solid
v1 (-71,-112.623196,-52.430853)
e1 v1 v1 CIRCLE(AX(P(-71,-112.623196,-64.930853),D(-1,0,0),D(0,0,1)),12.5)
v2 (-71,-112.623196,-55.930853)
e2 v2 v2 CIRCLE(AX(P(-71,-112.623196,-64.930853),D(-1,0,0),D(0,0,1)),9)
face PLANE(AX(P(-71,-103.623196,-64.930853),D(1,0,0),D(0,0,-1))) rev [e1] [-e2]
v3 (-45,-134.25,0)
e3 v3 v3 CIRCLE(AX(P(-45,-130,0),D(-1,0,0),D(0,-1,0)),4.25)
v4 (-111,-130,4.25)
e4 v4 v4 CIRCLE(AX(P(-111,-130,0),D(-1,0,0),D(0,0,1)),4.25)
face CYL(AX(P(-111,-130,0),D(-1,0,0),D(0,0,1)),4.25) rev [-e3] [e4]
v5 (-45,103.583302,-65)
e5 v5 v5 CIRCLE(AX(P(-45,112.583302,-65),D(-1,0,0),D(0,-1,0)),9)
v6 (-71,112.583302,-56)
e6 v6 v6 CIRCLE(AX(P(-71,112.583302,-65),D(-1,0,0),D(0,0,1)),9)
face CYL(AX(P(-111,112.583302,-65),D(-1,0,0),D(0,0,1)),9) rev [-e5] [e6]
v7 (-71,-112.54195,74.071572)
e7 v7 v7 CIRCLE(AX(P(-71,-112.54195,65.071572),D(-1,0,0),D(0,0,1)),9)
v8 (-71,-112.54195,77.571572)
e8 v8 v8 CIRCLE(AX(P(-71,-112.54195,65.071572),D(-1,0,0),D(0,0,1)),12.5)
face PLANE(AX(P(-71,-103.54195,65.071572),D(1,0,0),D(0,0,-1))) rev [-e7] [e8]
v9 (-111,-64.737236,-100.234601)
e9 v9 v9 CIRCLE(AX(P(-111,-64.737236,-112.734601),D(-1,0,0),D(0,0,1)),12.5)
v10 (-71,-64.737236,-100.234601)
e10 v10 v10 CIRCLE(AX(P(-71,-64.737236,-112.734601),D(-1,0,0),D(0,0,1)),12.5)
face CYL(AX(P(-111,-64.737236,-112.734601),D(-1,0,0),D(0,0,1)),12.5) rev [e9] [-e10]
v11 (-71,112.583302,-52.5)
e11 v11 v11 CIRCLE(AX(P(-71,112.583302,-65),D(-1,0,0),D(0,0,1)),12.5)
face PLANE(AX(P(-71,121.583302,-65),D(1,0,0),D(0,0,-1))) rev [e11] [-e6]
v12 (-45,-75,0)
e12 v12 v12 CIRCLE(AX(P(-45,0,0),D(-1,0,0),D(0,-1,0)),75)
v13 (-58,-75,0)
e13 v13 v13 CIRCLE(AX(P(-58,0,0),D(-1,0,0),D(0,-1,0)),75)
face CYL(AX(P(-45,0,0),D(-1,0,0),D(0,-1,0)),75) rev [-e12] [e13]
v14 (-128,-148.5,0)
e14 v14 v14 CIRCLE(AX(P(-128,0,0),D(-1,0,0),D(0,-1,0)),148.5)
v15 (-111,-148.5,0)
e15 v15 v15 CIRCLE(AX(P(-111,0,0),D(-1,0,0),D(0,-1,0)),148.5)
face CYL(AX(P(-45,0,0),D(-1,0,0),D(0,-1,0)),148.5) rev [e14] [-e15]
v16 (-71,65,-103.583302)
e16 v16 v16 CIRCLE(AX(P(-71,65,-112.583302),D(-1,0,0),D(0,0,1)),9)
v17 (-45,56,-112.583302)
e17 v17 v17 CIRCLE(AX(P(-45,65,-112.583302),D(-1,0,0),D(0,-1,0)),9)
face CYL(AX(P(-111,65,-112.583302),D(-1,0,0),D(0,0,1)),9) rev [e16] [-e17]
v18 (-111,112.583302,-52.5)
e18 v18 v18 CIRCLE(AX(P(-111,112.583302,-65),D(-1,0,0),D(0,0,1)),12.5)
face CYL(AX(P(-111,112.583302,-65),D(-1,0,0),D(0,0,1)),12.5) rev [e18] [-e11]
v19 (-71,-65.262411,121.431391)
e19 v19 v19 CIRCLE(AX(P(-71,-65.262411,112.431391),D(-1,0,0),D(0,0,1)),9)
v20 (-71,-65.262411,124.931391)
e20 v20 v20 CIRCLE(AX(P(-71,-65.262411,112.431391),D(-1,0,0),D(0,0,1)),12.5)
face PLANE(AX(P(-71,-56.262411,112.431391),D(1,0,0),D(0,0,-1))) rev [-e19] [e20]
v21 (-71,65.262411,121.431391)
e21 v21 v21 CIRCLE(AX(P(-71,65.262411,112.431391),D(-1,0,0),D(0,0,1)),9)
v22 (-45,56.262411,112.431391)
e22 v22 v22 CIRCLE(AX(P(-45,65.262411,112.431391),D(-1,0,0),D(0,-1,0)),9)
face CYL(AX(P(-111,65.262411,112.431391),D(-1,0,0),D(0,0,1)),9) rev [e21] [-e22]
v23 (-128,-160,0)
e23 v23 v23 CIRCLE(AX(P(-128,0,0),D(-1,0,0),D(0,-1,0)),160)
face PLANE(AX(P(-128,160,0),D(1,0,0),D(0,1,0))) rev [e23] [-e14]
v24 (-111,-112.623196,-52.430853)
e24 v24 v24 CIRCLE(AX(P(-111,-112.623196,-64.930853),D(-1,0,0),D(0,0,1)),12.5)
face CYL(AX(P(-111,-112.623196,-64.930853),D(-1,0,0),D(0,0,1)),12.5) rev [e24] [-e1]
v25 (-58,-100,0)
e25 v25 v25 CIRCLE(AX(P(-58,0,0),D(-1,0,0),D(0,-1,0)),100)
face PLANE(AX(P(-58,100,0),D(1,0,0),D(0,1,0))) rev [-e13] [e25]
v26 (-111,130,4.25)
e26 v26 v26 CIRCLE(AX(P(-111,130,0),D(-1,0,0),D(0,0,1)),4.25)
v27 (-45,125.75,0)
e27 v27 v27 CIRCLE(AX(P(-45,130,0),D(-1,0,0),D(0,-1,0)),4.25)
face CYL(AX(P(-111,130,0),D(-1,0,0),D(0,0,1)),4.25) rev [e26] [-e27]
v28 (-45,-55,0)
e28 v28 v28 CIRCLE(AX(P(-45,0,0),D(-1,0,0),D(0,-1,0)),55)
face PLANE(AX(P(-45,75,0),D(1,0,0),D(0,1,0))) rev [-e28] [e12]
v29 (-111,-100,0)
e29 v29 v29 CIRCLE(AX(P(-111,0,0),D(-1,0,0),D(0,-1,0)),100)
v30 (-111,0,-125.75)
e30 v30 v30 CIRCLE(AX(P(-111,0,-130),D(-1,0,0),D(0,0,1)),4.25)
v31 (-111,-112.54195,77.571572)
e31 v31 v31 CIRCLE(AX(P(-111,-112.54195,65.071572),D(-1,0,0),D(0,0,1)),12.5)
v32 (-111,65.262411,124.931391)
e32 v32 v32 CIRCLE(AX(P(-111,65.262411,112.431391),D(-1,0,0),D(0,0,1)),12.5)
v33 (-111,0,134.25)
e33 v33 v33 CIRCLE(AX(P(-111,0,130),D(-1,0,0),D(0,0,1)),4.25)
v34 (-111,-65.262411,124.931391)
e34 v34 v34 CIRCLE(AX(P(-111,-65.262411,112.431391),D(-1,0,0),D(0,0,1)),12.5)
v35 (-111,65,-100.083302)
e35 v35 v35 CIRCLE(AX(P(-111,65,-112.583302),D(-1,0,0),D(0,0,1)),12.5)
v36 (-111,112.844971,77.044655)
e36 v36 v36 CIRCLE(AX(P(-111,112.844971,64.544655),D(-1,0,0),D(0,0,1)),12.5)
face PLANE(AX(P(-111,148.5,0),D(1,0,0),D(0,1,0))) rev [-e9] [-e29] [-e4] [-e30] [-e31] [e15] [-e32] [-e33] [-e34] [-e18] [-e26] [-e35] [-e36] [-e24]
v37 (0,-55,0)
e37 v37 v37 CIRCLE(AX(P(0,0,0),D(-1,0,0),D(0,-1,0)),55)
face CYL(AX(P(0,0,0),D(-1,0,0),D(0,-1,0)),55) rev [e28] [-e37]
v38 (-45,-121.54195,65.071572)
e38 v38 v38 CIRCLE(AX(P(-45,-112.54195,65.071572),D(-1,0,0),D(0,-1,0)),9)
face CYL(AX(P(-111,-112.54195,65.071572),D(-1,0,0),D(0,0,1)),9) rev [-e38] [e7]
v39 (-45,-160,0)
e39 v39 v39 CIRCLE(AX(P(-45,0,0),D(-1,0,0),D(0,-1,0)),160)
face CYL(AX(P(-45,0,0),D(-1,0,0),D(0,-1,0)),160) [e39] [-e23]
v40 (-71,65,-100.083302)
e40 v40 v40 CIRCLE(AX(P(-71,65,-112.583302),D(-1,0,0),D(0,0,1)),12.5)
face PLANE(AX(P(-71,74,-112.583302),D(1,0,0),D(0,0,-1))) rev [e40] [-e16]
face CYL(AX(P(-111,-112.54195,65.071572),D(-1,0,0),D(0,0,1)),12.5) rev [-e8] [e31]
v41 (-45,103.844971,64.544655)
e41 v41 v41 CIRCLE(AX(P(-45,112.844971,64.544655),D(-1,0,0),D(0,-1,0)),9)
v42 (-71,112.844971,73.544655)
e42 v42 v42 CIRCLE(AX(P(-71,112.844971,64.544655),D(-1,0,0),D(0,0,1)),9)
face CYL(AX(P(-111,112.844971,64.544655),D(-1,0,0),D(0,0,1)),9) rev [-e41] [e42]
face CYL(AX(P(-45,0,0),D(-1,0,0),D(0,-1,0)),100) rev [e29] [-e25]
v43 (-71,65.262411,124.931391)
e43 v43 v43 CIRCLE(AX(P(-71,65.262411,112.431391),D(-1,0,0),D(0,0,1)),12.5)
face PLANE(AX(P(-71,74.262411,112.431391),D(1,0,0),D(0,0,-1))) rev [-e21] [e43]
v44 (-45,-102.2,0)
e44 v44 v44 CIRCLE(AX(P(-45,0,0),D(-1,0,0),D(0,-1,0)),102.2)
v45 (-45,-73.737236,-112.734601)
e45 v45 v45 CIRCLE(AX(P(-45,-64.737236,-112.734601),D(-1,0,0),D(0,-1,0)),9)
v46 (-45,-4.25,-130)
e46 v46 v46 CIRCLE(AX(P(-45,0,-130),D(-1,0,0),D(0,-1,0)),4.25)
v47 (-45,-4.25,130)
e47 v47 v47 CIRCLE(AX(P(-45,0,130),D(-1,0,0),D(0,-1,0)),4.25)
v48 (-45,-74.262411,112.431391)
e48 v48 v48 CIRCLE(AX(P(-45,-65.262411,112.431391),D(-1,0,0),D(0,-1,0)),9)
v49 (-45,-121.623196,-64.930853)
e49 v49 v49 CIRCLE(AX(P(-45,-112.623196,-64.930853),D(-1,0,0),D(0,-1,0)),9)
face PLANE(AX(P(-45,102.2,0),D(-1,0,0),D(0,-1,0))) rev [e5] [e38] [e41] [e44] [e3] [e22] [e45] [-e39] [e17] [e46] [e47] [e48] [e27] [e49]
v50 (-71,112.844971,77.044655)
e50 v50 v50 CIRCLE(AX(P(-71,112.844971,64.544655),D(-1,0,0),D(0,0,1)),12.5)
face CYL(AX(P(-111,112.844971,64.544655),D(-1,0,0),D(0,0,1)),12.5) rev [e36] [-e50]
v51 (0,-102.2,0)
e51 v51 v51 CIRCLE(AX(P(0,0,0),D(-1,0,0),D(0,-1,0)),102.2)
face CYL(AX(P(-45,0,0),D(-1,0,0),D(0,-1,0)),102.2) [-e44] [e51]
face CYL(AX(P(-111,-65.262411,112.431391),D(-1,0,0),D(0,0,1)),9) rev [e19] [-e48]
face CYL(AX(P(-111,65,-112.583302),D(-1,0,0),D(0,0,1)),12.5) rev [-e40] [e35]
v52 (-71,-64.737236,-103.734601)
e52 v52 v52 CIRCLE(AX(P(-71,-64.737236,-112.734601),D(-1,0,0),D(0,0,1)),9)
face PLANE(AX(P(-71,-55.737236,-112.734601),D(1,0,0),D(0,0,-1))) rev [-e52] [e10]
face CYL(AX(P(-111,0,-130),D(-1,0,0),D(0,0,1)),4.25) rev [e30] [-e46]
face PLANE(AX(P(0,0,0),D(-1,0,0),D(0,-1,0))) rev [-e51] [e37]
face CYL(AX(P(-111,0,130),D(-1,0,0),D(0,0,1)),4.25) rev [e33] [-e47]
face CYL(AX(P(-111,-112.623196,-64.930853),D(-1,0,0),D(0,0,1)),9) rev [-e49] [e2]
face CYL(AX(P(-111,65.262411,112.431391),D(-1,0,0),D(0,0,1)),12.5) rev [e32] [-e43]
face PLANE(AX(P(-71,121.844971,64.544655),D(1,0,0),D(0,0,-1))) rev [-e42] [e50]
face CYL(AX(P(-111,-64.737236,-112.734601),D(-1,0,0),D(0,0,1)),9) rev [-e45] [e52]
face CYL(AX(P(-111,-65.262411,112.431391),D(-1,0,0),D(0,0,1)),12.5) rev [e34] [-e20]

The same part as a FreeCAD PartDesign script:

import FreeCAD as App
import Part
import Sketcher

V = App.Vector

doc = App.newDocument("Part")
body = doc.addObject("PartDesign::Body", "Body")

# Sketch on XY plane
sketch1 = doc.addObject("Sketcher::SketchObject", "Sketch")
body.addObject(sketch1)
sketch1.AttachmentSupport = (doc.XY_Plane, [""])
sketch1.MapMode = "FlatFace"
sketch1.addGeometry([
    Part.LineSegment(V(0, 0, 0), V(0, 102, 0)),  # 0
    Part.LineSegment(V(0, 102, 0), V(-45, 102, 0)),  # 1
    Part.LineSegment(V(-45, 102, 0), V(-45, 160, 0)),  # 2
    Part.LineSegment(V(-45, 160, 0), V(-128, 160, 0)),  # 3
    Part.LineSegment(V(-128, 160, 0), V(-128, 148, 0)),  # 4
    Part.LineSegment(V(-128, 148, 0), V(-111, 148, 0)),  # 5
    Part.LineSegment(V(-111, 148, 0), V(-111, 100, 0)),  # 6
    Part.LineSegment(V(-111, 100, 0), V(-58, 100, 0)),  # 7
    Part.LineSegment(V(-58, 100, 0), V(-58, 75, 0)),  # 8
    Part.LineSegment(V(-58, 75, 0), V(-45, 75, 0)),  # 9
    Part.LineSegment(V(-45, 75, 0), V(-45, 0, 0)),  # 10
    Part.LineSegment(V(-45, 0, 0), V(0, 0, 0)),  # 11
], False)
sketch1.addConstraint([
    Sketcher.Constraint("Coincident", 0, 2, 1, 1),
    Sketcher.Constraint("Coincident", 1, 2, 2, 1),
    Sketcher.Constraint("Coincident", 2, 2, 3, 1),
    Sketcher.Constraint("Coincident", 3, 2, 4, 1),
    Sketcher.Constraint("Coincident", 4, 2, 5, 1),
    Sketcher.Constraint("Coincident", 5, 2, 6, 1),
    Sketcher.Constraint("Coincident", 6, 2, 7, 1),
    Sketcher.Constraint("Coincident", 7, 2, 8, 1),
    Sketcher.Constraint("Coincident", 8, 2, 9, 1),
    Sketcher.Constraint("Coincident", 9, 2, 10, 1),
    Sketcher.Constraint("Coincident", 10, 2, 11, 1),
    Sketcher.Constraint("Coincident", 11, 2, 0, 1),
    Sketcher.Constraint("Vertical", 0),
    Sketcher.Constraint("Horizontal", 1),
    Sketcher.Constraint("Vertical", 2),
    Sketcher.Constraint("Horizontal", 3),
    Sketcher.Constraint("Vertical", 4),
    Sketcher.Constraint("Horizontal", 5),
    Sketcher.Constraint("Vertical", 6),
    Sketcher.Constraint("Horizontal", 7),
    Sketcher.Constraint("Vertical", 8),
    Sketcher.Constraint("Horizontal", 9),
    Sketcher.Constraint("Vertical", 10),
    Sketcher.Constraint("Horizontal", 11),
    Sketcher.Constraint("Coincident", 11, 2, -1, 1),
    Sketcher.Constraint("Vertical", 2, 2, 9, 2),
    Sketcher.Constraint("DistanceX", 1, 2, 1, 1, 45.0),
    Sketcher.Constraint("DistanceX", 3, 2, 3, 1, 83.0),
    Sketcher.Constraint("DistanceX", 5, 1, 5, 2, 17.0),
    Sketcher.Constraint("DistanceX", 7, 1, 7, 2, 53.0),
    Sketcher.Constraint("DistanceY", 8, 2, 8, 1, 25.0),
    Sketcher.Constraint("DistanceY", 10, 2, 10, 1, 75.0),
    Sketcher.Constraint("DistanceY", 0, 1, 0, 2, 102.2),
    Sketcher.Constraint("DistanceY", 2, 1, 2, 2, 57.8),
    Sketcher.Constraint("DistanceY", 4, 2, 4, 1, 11.5),
])
revolution = doc.addObject("PartDesign::Revolution", "Revolution")
body.addObject(revolution)
revolution.Profile = sketch1
revolution.ReferenceAxis = (sketch1, ["H_Axis"])
revolution.Angle = 360

# Sketch on YZ plane
sketch2 = doc.addObject("Sketcher::SketchObject", "Sketch001")
body.addObject(sketch2)
sketch2.AttachmentSupport = (doc.YZ_Plane, [""])
sketch2.MapMode = "FlatFace"
sketch2.AttachmentOffset = App.Placement(V(0, 0, -45), App.Rotation())
sketch2.addGeometry(Part.Circle(V(0, 0, 0), V(0, 0, 1), 55), False)
sketch2.addConstraint([
    Sketcher.Constraint("Coincident", 0, 3, -1, 1),
    Sketcher.Constraint("Diameter", 0, 110.0),
])
pocket1 = doc.addObject("PartDesign::Pocket", "Pocket")
body.addObject(pocket1)
pocket1.Profile = sketch2
pocket1.Type = "ThroughAll"
pocket1.Reversed = True

# Sketch on YZ plane
sketch3 = doc.addObject("Sketcher::SketchObject", "Sketch002")
body.addObject(sketch3)
sketch3.AttachmentSupport = (doc.YZ_Plane, [""])
sketch3.MapMode = "FlatFace"
sketch3.AttachmentOffset = App.Placement(V(0, 0, -111), App.Rotation())
sketch3.addGeometry([
    Part.Circle(V(0, -130, 0), V(0, 0, 1), 4.2),
    Part.Circle(V(-130, 0, 0), V(0, 0, 1), 4.2),
    Part.Circle(V(0, 130, 0), V(0, 0, 1), 4.2),
    Part.Circle(V(130, 0, 0), V(0, 0, 1), 4.2),
], False)
sketch3.addConstraint([
    Sketcher.Constraint("Equal", 0, 1),
    Sketcher.Constraint("Equal", 1, 2),
    Sketcher.Constraint("Equal", 2, 3),
    Sketcher.Constraint("Symmetric", 0, 3, 2, 3, -1, 1),
    Sketcher.Constraint("Symmetric", 1, 3, 3, 3, -1, 1),
    Sketcher.Constraint("PointOnObject", 0, 3, -2),
    Sketcher.Constraint("PointOnObject", 1, 3, -1),
    Sketcher.Constraint("Diameter", 0, 8.5),
    Sketcher.Constraint("DistanceY", 0, 3, -1, 1, 130.0),
    Sketcher.Constraint("DistanceX", 1, 3, -1, 1, 130.0),
])
doc.recompute()
hole = doc.addObject("PartDesign::Hole", "Hole")
body.addObject(hole)
hole.Profile = sketch3
hole.ThreadType = "None"
hole.Diameter = 8.5
hole.DepthType = "ThroughAll"
hole.Reversed = True

# Sketch on YZ plane
sketch4 = doc.addObject("Sketcher::SketchObject", "Sketch003")
body.addObject(sketch4)
sketch4.AttachmentSupport = (doc.YZ_Plane, [""])
sketch4.MapMode = "FlatFace"
sketch4.AttachmentOffset = App.Placement(V(0, 0, -111), App.Rotation())
sketch4.addGeometry([
    Part.Circle(V(65, -113, 0), V(0, 0, 1), 9),
    Part.Circle(V(113, -65, 0), V(0, 0, 1), 9),
], False)
sketch4.addConstraint([
    Sketcher.Constraint("Equal", 0, 1),
    Sketcher.Constraint("Diameter", 0, 18.0),
    Sketcher.Constraint("DistanceX", -1, 1, 0, 3, 65.0),
    Sketcher.Constraint("DistanceY", 1, 3, -1, 1, 65.0),
    Sketcher.Constraint("DistanceY", 0, 3, -1, 1, 112.583302),
    Sketcher.Constraint("DistanceX", -1, 1, 1, 3, 112.583302),
])
doc.recompute()
hole2 = doc.addObject("PartDesign::Hole", "Hole001")
body.addObject(hole2)
hole2.Profile = sketch4
hole2.ThreadType = "None"
hole2.Diameter = 18
hole2.DepthType = "Dimension"
hole2.Depth = 90
hole2.DrillPoint = "Flat"
hole2.HoleCutType = "Counterbore"
hole2.HoleCutDiameter = 25
hole2.HoleCutDepth = 40
hole2.Reversed = True

# Sketch on YZ plane
sketch5 = doc.addObject("Sketcher::SketchObject", "Sketch004")
body.addObject(sketch5)
sketch5.AttachmentSupport = (doc.YZ_Plane, [""])
sketch5.MapMode = "FlatFace"
sketch5.AttachmentOffset = App.Placement(V(0, 0, -111), App.Rotation())
sketch5.addGeometry([
    Part.Circle(V(113, 65, 0), V(0, 0, 1), 9),  # 0
    Part.Circle(V(65, 112, 0), V(0, 0, 1), 9),  # 1
    Part.Circle(V(-65, 112, 0), V(0, 0, 1), 9),  # 2
    Part.Circle(V(-113, 65, 0), V(0, 0, 1), 9),  # 3
    Part.Circle(V(-113, -65, 0), V(0, 0, 1), 9),  # 4
    Part.Circle(V(-65, -113, 0), V(0, 0, 1), 9),  # 5
], False)
sketch5.addConstraint([
    Sketcher.Constraint("Equal", 0, 1),
    Sketcher.Constraint("Equal", 1, 2),
    Sketcher.Constraint("Equal", 2, 3),
    Sketcher.Constraint("Equal", 3, 4),
    Sketcher.Constraint("Equal", 4, 5),
    Sketcher.Constraint("Symmetric", 1, 3, 2, 3, -2),
    Sketcher.Constraint("Diameter", 0, 18.0),
    Sketcher.Constraint("DistanceY", 5, 3, -1, 1, 112.734601),
    Sketcher.Constraint("DistanceX", -1, 1, 0, 3, 112.844971),
    Sketcher.Constraint("DistanceX", -1, 1, 1, 3, 65.262411),
    Sketcher.Constraint("DistanceY", -1, 1, 1, 3, 112.431391),
    Sketcher.Constraint("DistanceX", 3, 3, -1, 1, 112.54195),
    Sketcher.Constraint("DistanceY", -1, 1, 3, 3, 65.071572),
    Sketcher.Constraint("DistanceX", 4, 3, 5, 3, 47.885961),
    Sketcher.Constraint("DistanceY", 5, 3, 4, 3, 47.803749),
    Sketcher.Constraint("DistanceY", -1, 1, 0, 3, 64.544655),
    Sketcher.Constraint("DistanceX", 4, 3, -1, 1, 112.623196),
])
doc.recompute()
hole3 = doc.addObject("PartDesign::Hole", "Hole002")
body.addObject(hole3)
hole3.Profile = sketch5
hole3.ThreadType = "None"
hole3.Diameter = 18
hole3.DepthType = "Dimension"
hole3.Depth = 90
hole3.DrillPoint = "Flat"
hole3.HoleCutType = "Counterbore"
hole3.HoleCutDiameter = 25
hole3.HoleCutDepth = 40
hole3.Reversed = True

doc.recompute()
